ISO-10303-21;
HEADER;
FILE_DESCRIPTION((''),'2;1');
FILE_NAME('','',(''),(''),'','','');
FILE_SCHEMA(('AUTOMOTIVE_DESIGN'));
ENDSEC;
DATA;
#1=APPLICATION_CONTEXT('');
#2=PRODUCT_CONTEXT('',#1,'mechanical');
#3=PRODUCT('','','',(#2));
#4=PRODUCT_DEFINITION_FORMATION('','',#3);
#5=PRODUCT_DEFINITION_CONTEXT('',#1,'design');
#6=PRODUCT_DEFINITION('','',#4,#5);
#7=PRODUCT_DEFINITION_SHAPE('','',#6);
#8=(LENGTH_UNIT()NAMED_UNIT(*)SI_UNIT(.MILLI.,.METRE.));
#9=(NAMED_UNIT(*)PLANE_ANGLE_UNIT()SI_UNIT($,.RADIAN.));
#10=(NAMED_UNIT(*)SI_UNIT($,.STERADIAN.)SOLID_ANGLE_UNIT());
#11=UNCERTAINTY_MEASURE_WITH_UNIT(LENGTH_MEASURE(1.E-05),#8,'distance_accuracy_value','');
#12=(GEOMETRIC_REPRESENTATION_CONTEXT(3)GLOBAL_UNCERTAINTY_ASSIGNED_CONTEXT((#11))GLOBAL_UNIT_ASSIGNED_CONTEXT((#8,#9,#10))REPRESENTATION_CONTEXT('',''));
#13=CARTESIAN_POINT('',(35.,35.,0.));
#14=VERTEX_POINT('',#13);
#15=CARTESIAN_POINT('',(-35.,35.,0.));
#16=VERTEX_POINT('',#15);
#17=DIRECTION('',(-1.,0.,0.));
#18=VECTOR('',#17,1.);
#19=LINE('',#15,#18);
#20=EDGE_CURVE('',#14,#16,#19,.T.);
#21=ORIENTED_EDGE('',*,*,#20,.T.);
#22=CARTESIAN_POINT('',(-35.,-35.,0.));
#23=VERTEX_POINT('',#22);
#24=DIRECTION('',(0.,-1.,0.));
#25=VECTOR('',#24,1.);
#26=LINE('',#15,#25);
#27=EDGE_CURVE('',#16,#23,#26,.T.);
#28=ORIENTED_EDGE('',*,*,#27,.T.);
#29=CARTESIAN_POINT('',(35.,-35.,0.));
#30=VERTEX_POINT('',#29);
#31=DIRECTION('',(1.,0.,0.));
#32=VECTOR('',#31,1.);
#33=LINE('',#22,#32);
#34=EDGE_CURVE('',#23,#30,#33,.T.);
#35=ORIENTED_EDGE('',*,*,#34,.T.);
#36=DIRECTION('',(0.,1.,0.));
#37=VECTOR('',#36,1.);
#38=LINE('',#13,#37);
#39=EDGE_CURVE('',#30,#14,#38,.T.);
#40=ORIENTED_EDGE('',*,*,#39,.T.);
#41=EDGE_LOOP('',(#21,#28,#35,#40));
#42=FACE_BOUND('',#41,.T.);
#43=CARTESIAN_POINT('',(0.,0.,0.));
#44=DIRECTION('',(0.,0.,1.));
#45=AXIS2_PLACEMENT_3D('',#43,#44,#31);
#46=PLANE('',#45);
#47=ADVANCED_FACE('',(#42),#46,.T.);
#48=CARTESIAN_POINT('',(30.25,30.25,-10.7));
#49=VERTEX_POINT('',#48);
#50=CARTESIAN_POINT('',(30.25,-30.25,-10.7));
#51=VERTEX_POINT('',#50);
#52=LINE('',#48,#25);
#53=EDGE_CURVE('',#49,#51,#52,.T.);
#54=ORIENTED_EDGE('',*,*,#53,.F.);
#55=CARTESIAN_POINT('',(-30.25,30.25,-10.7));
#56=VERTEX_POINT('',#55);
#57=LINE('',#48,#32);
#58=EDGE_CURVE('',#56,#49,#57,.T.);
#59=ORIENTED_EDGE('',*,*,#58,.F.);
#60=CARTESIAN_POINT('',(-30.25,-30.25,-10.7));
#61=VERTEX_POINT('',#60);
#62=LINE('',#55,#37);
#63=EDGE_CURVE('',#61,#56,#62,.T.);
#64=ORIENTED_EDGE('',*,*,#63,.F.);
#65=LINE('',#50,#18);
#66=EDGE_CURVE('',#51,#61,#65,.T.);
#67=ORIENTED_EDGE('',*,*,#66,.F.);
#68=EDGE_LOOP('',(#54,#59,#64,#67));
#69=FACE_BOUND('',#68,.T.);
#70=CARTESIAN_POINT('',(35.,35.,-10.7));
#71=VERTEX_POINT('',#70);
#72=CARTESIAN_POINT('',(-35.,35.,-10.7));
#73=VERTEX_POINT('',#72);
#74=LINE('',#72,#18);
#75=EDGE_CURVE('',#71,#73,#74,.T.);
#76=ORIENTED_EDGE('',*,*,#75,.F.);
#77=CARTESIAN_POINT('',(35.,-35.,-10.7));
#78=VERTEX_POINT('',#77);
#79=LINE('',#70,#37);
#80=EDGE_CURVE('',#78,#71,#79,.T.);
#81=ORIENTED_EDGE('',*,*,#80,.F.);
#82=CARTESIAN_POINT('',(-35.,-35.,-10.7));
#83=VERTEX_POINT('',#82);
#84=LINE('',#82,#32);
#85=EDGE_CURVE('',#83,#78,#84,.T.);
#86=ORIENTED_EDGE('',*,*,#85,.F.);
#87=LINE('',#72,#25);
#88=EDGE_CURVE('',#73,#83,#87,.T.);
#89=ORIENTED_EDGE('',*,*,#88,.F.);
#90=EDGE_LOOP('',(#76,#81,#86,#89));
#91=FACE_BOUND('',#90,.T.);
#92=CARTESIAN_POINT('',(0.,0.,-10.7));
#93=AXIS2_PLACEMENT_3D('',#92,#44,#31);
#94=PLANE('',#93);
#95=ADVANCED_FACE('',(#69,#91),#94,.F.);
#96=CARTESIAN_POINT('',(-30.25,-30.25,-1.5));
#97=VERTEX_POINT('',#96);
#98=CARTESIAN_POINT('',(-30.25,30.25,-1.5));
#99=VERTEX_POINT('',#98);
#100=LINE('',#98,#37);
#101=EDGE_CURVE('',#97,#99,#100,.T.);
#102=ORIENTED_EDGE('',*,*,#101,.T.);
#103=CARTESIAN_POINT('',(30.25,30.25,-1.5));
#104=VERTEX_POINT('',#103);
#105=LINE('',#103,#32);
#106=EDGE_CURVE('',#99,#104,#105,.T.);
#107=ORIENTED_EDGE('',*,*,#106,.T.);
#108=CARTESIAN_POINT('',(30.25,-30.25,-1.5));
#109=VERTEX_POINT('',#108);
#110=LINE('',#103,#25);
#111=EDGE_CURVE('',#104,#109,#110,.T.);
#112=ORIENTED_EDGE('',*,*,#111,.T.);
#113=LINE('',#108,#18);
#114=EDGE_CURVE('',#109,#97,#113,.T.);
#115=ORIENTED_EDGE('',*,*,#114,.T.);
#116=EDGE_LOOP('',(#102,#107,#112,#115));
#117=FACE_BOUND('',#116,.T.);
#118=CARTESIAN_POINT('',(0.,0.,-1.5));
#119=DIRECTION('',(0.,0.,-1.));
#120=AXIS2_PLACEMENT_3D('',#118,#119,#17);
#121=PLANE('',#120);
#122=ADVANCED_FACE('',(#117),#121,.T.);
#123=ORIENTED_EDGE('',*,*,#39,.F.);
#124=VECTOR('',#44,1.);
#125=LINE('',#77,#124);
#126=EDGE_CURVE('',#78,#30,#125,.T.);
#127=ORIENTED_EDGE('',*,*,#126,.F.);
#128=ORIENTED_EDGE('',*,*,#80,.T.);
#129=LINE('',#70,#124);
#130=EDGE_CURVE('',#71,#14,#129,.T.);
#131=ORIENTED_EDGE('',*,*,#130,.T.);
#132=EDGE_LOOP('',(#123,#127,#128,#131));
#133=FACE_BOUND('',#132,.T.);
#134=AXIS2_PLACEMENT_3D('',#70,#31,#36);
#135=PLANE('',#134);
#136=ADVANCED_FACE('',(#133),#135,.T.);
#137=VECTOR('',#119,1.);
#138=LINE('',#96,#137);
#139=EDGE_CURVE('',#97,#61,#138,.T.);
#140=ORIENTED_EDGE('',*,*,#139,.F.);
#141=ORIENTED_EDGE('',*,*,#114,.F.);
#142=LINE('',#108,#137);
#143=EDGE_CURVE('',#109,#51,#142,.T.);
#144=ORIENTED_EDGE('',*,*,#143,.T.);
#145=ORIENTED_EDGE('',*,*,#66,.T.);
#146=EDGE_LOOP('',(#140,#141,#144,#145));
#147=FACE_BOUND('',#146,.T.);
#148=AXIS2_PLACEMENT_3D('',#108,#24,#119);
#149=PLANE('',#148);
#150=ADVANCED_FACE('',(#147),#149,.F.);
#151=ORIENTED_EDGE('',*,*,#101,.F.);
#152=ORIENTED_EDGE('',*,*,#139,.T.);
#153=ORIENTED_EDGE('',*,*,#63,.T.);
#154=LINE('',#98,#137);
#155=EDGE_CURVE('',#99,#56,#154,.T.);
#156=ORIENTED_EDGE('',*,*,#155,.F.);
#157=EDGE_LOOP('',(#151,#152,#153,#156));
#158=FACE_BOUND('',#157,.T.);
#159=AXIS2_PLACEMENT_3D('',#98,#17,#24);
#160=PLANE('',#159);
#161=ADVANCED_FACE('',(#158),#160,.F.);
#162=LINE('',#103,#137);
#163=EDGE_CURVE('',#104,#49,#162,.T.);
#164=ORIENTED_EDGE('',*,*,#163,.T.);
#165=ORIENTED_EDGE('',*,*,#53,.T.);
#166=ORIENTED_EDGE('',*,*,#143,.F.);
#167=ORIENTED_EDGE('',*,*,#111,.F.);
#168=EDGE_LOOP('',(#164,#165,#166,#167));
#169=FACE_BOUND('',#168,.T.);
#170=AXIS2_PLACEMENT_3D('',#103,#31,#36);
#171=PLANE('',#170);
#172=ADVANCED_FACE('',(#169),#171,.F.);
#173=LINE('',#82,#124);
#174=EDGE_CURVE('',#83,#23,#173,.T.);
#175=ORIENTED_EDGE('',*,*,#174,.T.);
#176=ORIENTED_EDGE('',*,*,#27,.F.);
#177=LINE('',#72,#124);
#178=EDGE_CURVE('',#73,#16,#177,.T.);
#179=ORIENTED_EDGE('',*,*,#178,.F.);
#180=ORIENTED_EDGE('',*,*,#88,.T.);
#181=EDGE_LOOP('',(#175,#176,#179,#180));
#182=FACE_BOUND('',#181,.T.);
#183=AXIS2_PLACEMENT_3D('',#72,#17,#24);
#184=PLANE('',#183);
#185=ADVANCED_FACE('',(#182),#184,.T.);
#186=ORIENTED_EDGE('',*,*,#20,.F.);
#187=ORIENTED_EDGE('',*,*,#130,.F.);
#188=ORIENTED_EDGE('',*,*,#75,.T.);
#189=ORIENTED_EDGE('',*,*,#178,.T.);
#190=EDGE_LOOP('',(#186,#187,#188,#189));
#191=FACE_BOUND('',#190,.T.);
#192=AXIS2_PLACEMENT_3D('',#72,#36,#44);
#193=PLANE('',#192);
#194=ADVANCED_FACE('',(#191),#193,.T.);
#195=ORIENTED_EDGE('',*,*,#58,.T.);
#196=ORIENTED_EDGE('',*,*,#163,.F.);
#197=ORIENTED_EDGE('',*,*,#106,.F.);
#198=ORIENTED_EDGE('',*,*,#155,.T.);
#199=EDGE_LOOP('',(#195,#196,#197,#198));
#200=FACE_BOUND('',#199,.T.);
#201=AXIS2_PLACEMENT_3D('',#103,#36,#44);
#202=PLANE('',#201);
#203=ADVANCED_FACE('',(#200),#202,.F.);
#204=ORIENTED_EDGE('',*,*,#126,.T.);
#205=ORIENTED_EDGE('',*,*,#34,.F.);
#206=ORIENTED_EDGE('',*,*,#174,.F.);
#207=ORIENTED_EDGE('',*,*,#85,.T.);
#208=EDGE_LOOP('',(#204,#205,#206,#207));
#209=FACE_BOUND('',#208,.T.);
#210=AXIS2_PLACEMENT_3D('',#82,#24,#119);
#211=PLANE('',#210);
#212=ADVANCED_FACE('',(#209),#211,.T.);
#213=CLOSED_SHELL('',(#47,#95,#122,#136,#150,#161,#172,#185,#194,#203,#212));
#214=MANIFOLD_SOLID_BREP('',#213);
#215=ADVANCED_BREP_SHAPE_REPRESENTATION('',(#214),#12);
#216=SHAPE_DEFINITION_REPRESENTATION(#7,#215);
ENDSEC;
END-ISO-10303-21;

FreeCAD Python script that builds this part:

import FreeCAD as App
import Part
import Sketcher

V = App.Vector
Q = App.Units.Quantity


def add_polygon(sketch, points):
    """Adds a closed chain of lines whose ends are joined by coincident constraints."""
    first, n = sketch.GeometryCount, len(points)
    for a, b in zip(points, points[1:] + points[:1]):
        sketch.addGeometry(Part.LineSegment(App.Vector(*a, 0), App.Vector(*b, 0)), False)
    for i in range(n):
        sketch.addConstraint(Sketcher.Constraint("Coincident", first + i, 2, first + (i + 1) % n, 1))

doc = App.newDocument("Part")
params = doc.addObject("Spreadsheet::Sheet", "Params")
for row, (alias, value) in enumerate([
    ("sketch1_width", "70 mm"),
    ("pad1_length", "10.7 mm"),
    ("sketch2_width", "60.5 mm"),
    ("pocket1_length", "9.2 mm"),
], start=1):
    params.set(f"A{row}", alias)
    params.set(f"B{row}", "=" + value)
    params.setAlias(f"B{row}", alias)

body = doc.addObject("PartDesign::Body", "Body")

sketch1 = doc.addObject("Sketcher::SketchObject", "Sketch")
body.addObject(sketch1)
sketch1.AttachmentSupport = (doc.XY_Plane, [""])
sketch1.MapMode = "FlatFace"
add_polygon(sketch1, [(-35, 35), (-35, -35), (35, -35), (35, 35)])
sketch1.addConstraint([
    Sketcher.Constraint("Vertical", 0),
    Sketcher.Constraint("Horizontal", 1),
    Sketcher.Constraint("Vertical", 2),
    Sketcher.Constraint("Horizontal", 3),
    Sketcher.Constraint("Symmetric", 0, 2, 2, 2, -1, 1),
    Sketcher.Constraint("Equal", 3, 0),
    Sketcher.Constraint("DistanceX", 1, 1, 1, 2, Q("70 mm")),
])
sketch1.setExpression("Constraints[10]", "Params.sketch1_width")
pad1 = doc.addObject("PartDesign::Pad", "Pad")
body.addObject(pad1)
pad1.Profile = sketch1
pad1.setExpression("Length", "Params.pad1_length")
pad1.Reversed = True

sketch2 = doc.addObject("Sketcher::SketchObject", "Sketch001")
body.addObject(sketch2)
sketch2.AttachmentSupport = (doc.XY_Plane, [""])
sketch2.MapMode = "FlatFace"
sketch2.AttachmentOffset = App.Placement(V(0, 0, -10.7), App.Rotation())
add_polygon(sketch2, [(30, 30), (30, -30), (-30, -30), (-30, 30)])
sketch2.addConstraint([
    Sketcher.Constraint("Vertical", 0),
    Sketcher.Constraint("Horizontal", 1),
    Sketcher.Constraint("Vertical", 2),
    Sketcher.Constraint("Horizontal", 3),
    Sketcher.Constraint("Symmetric", 0, 2, 2, 2, -1, 1),
    Sketcher.Constraint("Equal", 3, 0),
    Sketcher.Constraint("DistanceX", 1, 2, 1, 1, Q("60.5 mm")),
])
sketch2.setExpression("Constraints[10]", "Params.sketch2_width")
pocket1 = doc.addObject("PartDesign::Pocket", "Pocket")
body.addObject(pocket1)
pocket1.Profile = sketch2
pocket1.setExpression("Length", "Params.pocket1_length")
pocket1.Reversed = True

doc.recompute()
